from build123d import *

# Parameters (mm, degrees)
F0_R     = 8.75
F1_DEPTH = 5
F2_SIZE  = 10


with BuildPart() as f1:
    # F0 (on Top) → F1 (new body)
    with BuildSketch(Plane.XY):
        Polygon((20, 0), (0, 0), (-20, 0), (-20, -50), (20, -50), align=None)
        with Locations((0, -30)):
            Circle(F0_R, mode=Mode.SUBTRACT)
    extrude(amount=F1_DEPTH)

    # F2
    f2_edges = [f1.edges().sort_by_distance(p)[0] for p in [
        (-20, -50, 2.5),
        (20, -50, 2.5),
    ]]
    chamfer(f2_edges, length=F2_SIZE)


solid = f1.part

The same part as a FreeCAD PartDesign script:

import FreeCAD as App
import Part
import Sketcher


def edges_at(feature, points):
    """Names of the edges that pass closest to the given points."""
    edges = feature.Shape.Edges
    near = lambda p: min(range(len(edges)), key=lambda i: edges[i].distToShape(Part.Vertex(*p))[0])
    return sorted({f"Edge{near(p) + 1}" for p in points})


def add_polygon(sketch, points):
    """Adds a closed chain of lines whose ends are joined by coincident constraints."""
    first, n = sketch.GeometryCount, len(points)
    for a, b in zip(points, points[1:] + points[:1]):
        sketch.addGeometry(Part.LineSegment(App.Vector(*a, 0), App.Vector(*b, 0)), False)
    for i in range(n):
        sketch.addConstraint(Sketcher.Constraint("Coincident", first + i, 2, first + (i + 1) % n, 1))

doc = App.newDocument("Part")
params = doc.addObject("Spreadsheet::Sheet", "Params")
for row, (alias, value) in enumerate([
    ("sketch1_diameter", "17.5 mm"),
    ("sketch1_width", "40 mm"),
    ("sketch1_height", "50 mm"),
    ("pad1_length", "5 mm"),
    ("chamfer_size", "10 mm"),
], start=1):
    params.set(f"A{row}", alias)
    params.set(f"B{row}", "=" + value)
    params.setAlias(f"B{row}", alias)

body = doc.addObject("PartDesign::Body", "Body")

sketch1 = body.newObject("Sketcher::SketchObject", "Sketch")
sketch1.AttachmentSupport = (doc.getObject("XY_Plane"), [""])
sketch1.MapMode = "FlatFace"
add_polygon(sketch1, [(20, 0), (-20, 0), (-20, -50), (20, -50)])
sketch1.addGeometry(Part.Circle(App.Vector(0, -30, 0), App.Vector(0, 0, 1), 8.75), False)
sketch1.addConstraint(Sketcher.Constraint("Horizontal", 0))
sketch1.addConstraint(Sketcher.Constraint("Vertical", 1))
sketch1.addConstraint(Sketcher.Constraint("Horizontal", 2))
sketch1.addConstraint(Sketcher.Constraint("Vertical", 3))
sketch1.addConstraint(Sketcher.Constraint("Symmetric", 0, 2, 3, 2, -1, 1))
sketch1.addConstraint(Sketcher.Constraint("PointOnObject", 4, 3, -2))
sketch1.addConstraint(Sketcher.Constraint("Diameter", 4, 17.5))
sketch1.addConstraint(Sketcher.Constraint("DistanceX", 0, 2, 0, 1, 40.0))
sketch1.addConstraint(Sketcher.Constraint("DistanceY", 1, 2, 1, 1, 50.0))
sketch1.addConstraint(Sketcher.Constraint("DistanceY", 4, 3, -1, 1, 30.0))
sketch1.setExpression("Constraints[10]", "Params.sketch1_diameter")
sketch1.setExpression("Constraints[11]", "Params.sketch1_width")
sketch1.setExpression("Constraints[12]", "Params.sketch1_height")
pad1 = body.newObject("PartDesign::Pad", "Pad")
pad1.Profile = sketch1
pad1.setExpression("Length", "Params.pad1_length")
doc.recompute()

chamfer = body.newObject("PartDesign::Chamfer", "Chamfer")
chamfer.Base = (pad1, edges_at(pad1, [(-20, -50, 2.5), (20, -50, 2.5)]))
chamfer.setExpression("Size", "Params.chamfer_size")

doc.recompute()
